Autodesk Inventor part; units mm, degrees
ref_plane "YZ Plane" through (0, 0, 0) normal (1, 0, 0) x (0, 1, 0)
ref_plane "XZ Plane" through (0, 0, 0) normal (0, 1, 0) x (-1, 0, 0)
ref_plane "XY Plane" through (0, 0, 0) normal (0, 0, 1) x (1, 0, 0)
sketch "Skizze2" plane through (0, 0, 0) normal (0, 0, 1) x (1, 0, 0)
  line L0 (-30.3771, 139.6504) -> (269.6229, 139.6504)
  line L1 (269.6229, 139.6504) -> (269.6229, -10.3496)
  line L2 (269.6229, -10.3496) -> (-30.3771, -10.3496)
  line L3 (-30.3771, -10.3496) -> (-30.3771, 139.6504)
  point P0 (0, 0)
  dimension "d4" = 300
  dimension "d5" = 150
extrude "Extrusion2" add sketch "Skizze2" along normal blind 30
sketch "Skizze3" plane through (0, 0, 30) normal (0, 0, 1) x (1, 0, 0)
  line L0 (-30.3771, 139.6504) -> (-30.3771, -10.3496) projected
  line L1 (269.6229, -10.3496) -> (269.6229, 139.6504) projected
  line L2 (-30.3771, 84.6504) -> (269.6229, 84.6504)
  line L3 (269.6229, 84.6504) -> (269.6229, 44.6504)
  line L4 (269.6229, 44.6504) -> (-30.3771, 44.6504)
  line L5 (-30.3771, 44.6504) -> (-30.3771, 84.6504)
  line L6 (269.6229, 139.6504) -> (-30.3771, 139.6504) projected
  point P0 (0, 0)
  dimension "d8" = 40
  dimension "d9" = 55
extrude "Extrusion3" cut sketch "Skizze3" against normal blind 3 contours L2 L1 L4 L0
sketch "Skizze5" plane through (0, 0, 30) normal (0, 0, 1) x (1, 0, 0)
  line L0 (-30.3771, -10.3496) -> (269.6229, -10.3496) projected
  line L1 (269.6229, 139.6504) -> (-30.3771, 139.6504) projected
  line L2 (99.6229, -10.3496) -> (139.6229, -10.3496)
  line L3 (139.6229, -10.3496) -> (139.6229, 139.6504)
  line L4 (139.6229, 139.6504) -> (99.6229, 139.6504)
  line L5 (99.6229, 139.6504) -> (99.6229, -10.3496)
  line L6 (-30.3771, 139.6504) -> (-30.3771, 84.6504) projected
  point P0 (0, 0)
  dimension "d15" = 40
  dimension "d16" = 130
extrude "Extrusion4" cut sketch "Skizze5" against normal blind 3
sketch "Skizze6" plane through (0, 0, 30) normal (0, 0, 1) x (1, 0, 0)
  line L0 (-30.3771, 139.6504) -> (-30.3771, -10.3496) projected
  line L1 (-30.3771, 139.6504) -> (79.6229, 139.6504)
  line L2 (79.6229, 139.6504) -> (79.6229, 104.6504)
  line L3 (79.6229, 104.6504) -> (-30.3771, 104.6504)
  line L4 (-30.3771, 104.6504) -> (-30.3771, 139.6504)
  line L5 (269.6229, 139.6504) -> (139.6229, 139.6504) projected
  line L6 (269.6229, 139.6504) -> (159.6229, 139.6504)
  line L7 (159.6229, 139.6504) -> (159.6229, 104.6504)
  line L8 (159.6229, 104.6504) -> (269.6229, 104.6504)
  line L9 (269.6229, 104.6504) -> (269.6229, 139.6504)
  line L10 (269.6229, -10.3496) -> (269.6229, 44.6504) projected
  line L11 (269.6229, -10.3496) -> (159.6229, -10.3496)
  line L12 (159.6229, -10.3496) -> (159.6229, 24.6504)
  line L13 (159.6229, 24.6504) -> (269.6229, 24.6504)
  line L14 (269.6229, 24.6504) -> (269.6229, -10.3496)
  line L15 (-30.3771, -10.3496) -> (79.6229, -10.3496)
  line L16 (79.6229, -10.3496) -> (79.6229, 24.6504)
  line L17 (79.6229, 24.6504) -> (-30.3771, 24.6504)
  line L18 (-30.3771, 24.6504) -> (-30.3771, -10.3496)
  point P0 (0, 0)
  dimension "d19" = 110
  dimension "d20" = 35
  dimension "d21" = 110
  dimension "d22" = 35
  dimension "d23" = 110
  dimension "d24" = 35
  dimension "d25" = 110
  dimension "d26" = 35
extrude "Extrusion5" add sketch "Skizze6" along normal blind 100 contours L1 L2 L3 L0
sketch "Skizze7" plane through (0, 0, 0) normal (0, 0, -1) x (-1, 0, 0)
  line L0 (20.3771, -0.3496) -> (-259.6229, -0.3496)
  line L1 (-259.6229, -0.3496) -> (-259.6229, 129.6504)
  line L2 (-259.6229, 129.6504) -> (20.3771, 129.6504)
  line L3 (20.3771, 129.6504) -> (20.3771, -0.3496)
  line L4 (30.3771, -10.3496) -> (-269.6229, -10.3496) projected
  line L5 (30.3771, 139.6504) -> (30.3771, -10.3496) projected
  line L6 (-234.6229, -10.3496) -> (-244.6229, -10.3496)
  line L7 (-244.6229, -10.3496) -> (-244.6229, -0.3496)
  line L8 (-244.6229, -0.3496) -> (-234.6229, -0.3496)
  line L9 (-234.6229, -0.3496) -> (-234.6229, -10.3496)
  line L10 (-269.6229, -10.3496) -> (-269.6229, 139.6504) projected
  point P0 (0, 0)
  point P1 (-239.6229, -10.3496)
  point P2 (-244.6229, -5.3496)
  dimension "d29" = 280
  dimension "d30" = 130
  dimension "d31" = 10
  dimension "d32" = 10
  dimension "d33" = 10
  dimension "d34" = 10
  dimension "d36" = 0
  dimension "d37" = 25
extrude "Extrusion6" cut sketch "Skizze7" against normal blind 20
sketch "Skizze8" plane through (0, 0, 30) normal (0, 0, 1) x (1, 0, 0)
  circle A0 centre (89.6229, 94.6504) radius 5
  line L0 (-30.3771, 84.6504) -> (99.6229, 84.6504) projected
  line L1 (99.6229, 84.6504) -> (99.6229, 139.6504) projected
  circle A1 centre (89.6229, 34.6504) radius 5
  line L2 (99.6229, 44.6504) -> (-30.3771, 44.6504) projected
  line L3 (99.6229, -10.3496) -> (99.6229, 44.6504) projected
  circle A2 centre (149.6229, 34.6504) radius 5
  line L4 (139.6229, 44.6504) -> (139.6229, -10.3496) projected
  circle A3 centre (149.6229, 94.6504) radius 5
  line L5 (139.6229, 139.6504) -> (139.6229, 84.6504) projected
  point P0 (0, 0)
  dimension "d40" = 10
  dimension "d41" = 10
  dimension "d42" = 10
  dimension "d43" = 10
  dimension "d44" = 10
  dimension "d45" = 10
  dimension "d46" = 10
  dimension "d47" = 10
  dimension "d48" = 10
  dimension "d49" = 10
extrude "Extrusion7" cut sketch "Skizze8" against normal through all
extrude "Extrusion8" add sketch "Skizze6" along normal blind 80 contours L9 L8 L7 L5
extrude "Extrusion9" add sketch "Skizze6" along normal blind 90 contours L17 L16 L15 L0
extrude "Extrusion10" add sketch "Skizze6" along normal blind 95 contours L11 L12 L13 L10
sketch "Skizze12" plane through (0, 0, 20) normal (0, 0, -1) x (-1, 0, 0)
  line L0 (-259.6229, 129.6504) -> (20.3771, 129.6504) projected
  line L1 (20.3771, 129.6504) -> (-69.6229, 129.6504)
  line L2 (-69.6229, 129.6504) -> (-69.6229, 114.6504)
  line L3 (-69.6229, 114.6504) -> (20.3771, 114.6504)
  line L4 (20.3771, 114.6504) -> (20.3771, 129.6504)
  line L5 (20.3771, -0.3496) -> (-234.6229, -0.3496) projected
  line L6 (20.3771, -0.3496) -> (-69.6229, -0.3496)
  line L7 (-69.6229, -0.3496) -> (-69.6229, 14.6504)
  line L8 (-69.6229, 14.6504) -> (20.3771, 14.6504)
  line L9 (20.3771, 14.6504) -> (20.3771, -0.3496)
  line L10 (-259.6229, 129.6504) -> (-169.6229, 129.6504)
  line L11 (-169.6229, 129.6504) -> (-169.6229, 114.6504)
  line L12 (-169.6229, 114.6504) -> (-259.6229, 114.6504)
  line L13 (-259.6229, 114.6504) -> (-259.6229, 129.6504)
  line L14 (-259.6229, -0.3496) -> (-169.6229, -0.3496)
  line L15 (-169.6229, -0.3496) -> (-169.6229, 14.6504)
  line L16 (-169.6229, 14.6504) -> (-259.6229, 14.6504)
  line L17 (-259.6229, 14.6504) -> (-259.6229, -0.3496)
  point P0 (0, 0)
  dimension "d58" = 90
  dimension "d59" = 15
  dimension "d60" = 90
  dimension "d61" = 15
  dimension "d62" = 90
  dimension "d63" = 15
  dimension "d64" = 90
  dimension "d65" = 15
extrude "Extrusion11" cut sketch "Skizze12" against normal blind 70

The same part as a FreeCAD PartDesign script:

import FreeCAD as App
import Part
import Sketcher
from FreeCAD import Vector

doc = App.newDocument("Part")
body = doc.addObject("PartDesign::Body", "Body")

sketch1 = body.newObject("Sketcher::SketchObject", "Sketch")
sketch1.AttachmentSupport = (doc.getObject("XY_Plane"), [""])
sketch1.MapMode = "FlatFace"
sketch1.addGeometry(Part.LineSegment(Vector(270, 140, 0), Vector(-30, 140, 0)), False)
sketch1.addGeometry(Part.LineSegment(Vector(-30, 140, 0), Vector(-30, -10, 0)), False)
sketch1.addGeometry(Part.LineSegment(Vector(-30, -10, 0), Vector(270, -10, 0)), False)
sketch1.addGeometry(Part.LineSegment(Vector(270, -10, 0), Vector(270, 140, 0)), False)
sketch1.addConstraint(Sketcher.Constraint("Coincident", 0, 2, 1, 1))
sketch1.addConstraint(Sketcher.Constraint("Coincident", 1, 2, 2, 1))
sketch1.addConstraint(Sketcher.Constraint("Coincident", 2, 2, 3, 1))
sketch1.addConstraint(Sketcher.Constraint("Coincident", 3, 2, 0, 1))
sketch1.addConstraint(Sketcher.Constraint("Horizontal", 0))
sketch1.addConstraint(Sketcher.Constraint("Vertical", 1))
sketch1.addConstraint(Sketcher.Constraint("Horizontal", 2))
sketch1.addConstraint(Sketcher.Constraint("Vertical", 3))
sketch1.addConstraint(Sketcher.Constraint("DistanceX", 0, 2, 0, 1, 300.0))
sketch1.addConstraint(Sketcher.Constraint("DistanceY", 1, 2, 1, 1, 150.0))
sketch1.addConstraint(Sketcher.Constraint("DistanceX", 0, 2, -1, 1, 30.377))
sketch1.addConstraint(Sketcher.Constraint("DistanceY", -1, 1, 0, 2, 139.6504))
pad1 = body.newObject("PartDesign::Pad", "Pad")
pad1.Profile = sketch1
pad1.Length = 30

sketch2 = body.newObject("Sketcher::SketchObject", "Sketch001")
sketch2.AttachmentSupport = (doc.getObject("XY_Plane"), [""])
sketch2.MapMode = "FlatFace"
sketch2.AttachmentOffset = App.Placement(Vector(0, 0, 30), App.Rotation())
sketch2.addGeometry(Part.LineSegment(Vector(270, 85, 0), Vector(-30, 85, 0)), False)
sketch2.addGeometry(Part.LineSegment(Vector(-30, 85, 0), Vector(-30, 45, 0)), False)
sketch2.addGeometry(Part.LineSegment(Vector(-30, 45, 0), Vector(270, 45, 0)), False)
sketch2.addGeometry(Part.LineSegment(Vector(270, 45, 0), Vector(270, 85, 0)), False)
sketch2.addConstraint(Sketcher.Constraint("Coincident", 0, 2, 1, 1))
sketch2.addConstraint(Sketcher.Constraint("Coincident", 1, 2, 2, 1))
sketch2.addConstraint(Sketcher.Constraint("Coincident", 2, 2, 3, 1))
sketch2.addConstraint(Sketcher.Constraint("Coincident", 3, 2, 0, 1))
sketch2.addConstraint(Sketcher.Constraint("Horizontal", 0))
sketch2.addConstraint(Sketcher.Constraint("Vertical", 1))
sketch2.addConstraint(Sketcher.Constraint("Horizontal", 2))
sketch2.addConstraint(Sketcher.Constraint("Vertical", 3))
sketch2.addConstraint(Sketcher.Constraint("DistanceY", 1, 2, 1, 1, 40.0))
sketch2.addConstraint(Sketcher.Constraint("DistanceX", 0, 2, 0, 1, 300.0))
sketch2.addConstraint(Sketcher.Constraint("DistanceX", 0, 2, -1, 1, 30.377))
sketch2.addConstraint(Sketcher.Constraint("DistanceY", -1, 1, 0, 2, 84.6504))
pocket1 = body.newObject("PartDesign::Pocket", "Pocket")
pocket1.Profile = sketch2
pocket1.Length = 3

sketch3 = body.newObject("Sketcher::SketchObject", "Sketch002")
sketch3.AttachmentSupport = (doc.getObject("XY_Plane"), [""])
sketch3.MapMode = "FlatFace"
sketch3.AttachmentOffset = App.Placement(Vector(0, 0, 30), App.Rotation())
sketch3.addGeometry(Part.LineSegment(Vector(100, 140, 0), Vector(100, -10, 0)), False)
sketch3.addGeometry(Part.LineSegment(Vector(100, -10, 0), Vector(140, -10, 0)), False)
sketch3.addGeometry(Part.LineSegment(Vector(140, -10, 0), Vector(140, 140, 0)), False)
sketch3.addGeometry(Part.LineSegment(Vector(140, 140, 0), Vector(100, 140, 0)), False)
sketch3.addConstraint(Sketcher.Constraint("Coincident", 0, 2, 1, 1))
sketch3.addConstraint(Sketcher.Constraint("Coincident", 1, 2, 2, 1))
sketch3.addConstraint(Sketcher.Constraint("Coincident", 2, 2, 3, 1))
sketch3.addConstraint(Sketcher.Constraint("Coincident", 3, 2, 0, 1))
sketch3.addConstraint(Sketcher.Constraint("Vertical", 0))
sketch3.addConstraint(Sketcher.Constraint("Horizontal", 1))
sketch3.addConstraint(Sketcher.Constraint("Vertical", 2))
sketch3.addConstraint(Sketcher.Constraint("Horizontal", 3))
sketch3.addConstraint(Sketcher.Constraint("DistanceX", 1, 1, 1, 2, 40.0))
sketch3.addConstraint(Sketcher.Constraint("DistanceY", 0, 2, 0, 1, 150.0))
sketch3.addConstraint(Sketcher.Constraint("DistanceX", -1, 1, 0, 2, 99.623))
sketch3.addConstraint(Sketcher.Constraint("DistanceY", 0, 2, -1, 1, 10.3496))
pocket2 = body.newObject("PartDesign::Pocket", "Pocket001")
pocket2.Profile = sketch3
pocket2.Length = 3

sketch4 = body.newObject("Sketcher::SketchObject", "Sketch003")
sketch4.AttachmentSupport = (doc.getObject("XY_Plane"), [""])
sketch4.MapMode = "FlatFace"
sketch4.AttachmentOffset = App.Placement(Vector(0, 0, 30), App.Rotation())
sketch4.addGeometry(Part.LineSegment(Vector(80, 140, 0), Vector(-30, 140, 0)), False)
sketch4.addGeometry(Part.LineSegment(Vector(-30, 140, 0), Vector(-30, 105, 0)), False)
sketch4.addGeometry(Part.LineSegment(Vector(-30, 105, 0), Vector(80, 105, 0)), False)
sketch4.addGeometry(Part.LineSegment(Vector(80, 105, 0), Vector(80, 140, 0)), False)
sketch4.addConstraint(Sketcher.Constraint("Coincident", 0, 2, 1, 1))
sketch4.addConstraint(Sketcher.Constraint("Coincident", 1, 2, 2, 1))
sketch4.addConstraint(Sketcher.Constraint("Coincident", 2, 2, 3, 1))
sketch4.addConstraint(Sketcher.Constraint("Coincident", 3, 2, 0, 1))
sketch4.addConstraint(Sketcher.Constraint("Horizontal", 0))
sketch4.addConstraint(Sketcher.Constraint("Vertical", 1))
sketch4.addConstraint(Sketcher.Constraint("Horizontal", 2))
sketch4.addConstraint(Sketcher.Constraint("Vertical", 3))
sketch4.addConstraint(Sketcher.Constraint("DistanceX", 0, 2, 0, 1, 110.0))
sketch4.addConstraint(Sketcher.Constraint("DistanceY", 1, 2, 1, 1, 35.0))
sketch4.addConstraint(Sketcher.Constraint("DistanceX", 0, 2, -1, 1, 30.377))
sketch4.addConstraint(Sketcher.Constraint("DistanceY", -1, 1, 0, 2, 139.6504))
pad2 = body.newObject("PartDesign::Pad", "Pad001")
pad2.Profile = sketch4
pad2.Length = 100

sketch5 = body.newObject("Sketcher::SketchObject", "Sketch004")
sketch5.AttachmentSupport = (doc.getObject("XY_Plane"), [""])
sketch5.MapMode = "FlatFace"
sketch5.addGeometry(Part.LineSegment(Vector(235, 0, 0), Vector(-20, 0, 0)), False)
sketch5.addGeometry(Part.LineSegment(Vector(-20, 0, 0), Vector(-20, 130, 0)), False)
sketch5.addGeometry(Part.LineSegment(Vector(-20, 130, 0), Vector(260, 130, 0)), False)
sketch5.addGeometry(Part.LineSegment(Vector(260, 130, 0), Vector(260, 0, 0)), False)
sketch5.addGeometry(Part.LineSegment(Vector(260, 0, 0), Vector(245, 0, 0)), False)
sketch5.addGeometry(Part.LineSegment(Vector(245, 0, 0), Vector(245, -10, 0)), False)
sketch5.addGeometry(Part.LineSegment(Vector(245, -10, 0), Vector(235, -10, 0)), False)
sketch5.addGeometry(Part.LineSegment(Vector(235, -10, 0), Vector(235, 0, 0)), False)
sketch5.addConstraint(Sketcher.Constraint("Coincident", 0, 2, 1, 1))
sketch5.addConstraint(Sketcher.Constraint("Coincident", 1, 2, 2, 1))
sketch5.addConstraint(Sketcher.Constraint("Coincident", 2, 2, 3, 1))
sketch5.addConstraint(Sketcher.Constraint("Coincident", 3, 2, 4, 1))
sketch5.addConstraint(Sketcher.Constraint("Coincident", 4, 2, 5, 1))
sketch5.addConstraint(Sketcher.Constraint("Coincident", 5, 2, 6, 1))
sketch5.addConstraint(Sketcher.Constraint("Coincident", 6, 2, 7, 1))
sketch5.addConstraint(Sketcher.Constraint("Coincident", 7, 2, 0, 1))
sketch5.addConstraint(Sketcher.Constraint("Horizontal", 0))
sketch5.addConstraint(Sketcher.Constraint("Vertical", 1))
sketch5.addConstraint(Sketcher.Constraint("Horizontal", 2))
sketch5.addConstraint(Sketcher.Constraint("Vertical", 3))
sketch5.addConstraint(Sketcher.Constraint("Horizontal", 4))
sketch5.addConstraint(Sketcher.Constraint("Vertical", 5))
sketch5.addConstraint(Sketcher.Constraint("Horizontal", 6))
sketch5.addConstraint(Sketcher.Constraint("Vertical", 7))
sketch5.addConstraint(Sketcher.Constraint("Horizontal", 0, 2, 3, 2))
sketch5.addConstraint(Sketcher.Constraint("Equal", 6, 5))
sketch5.addConstraint(Sketcher.Constraint("DistanceX", 2, 1, 2, 2, 280.0))
sketch5.addConstraint(Sketcher.Constraint("DistanceX", 6, 2, 6, 1, 10.0))
sketch5.addConstraint(Sketcher.Constraint("DistanceY", 1, 1, 1, 2, 130.0))
sketch5.addConstraint(Sketcher.Constraint("DistanceX", 6, 2, 3, 2, 25.0))
sketch5.addConstraint(Sketcher.Constraint("DistanceX", 0, 2, -1, 1, 20.377))
sketch5.addConstraint(Sketcher.Constraint("DistanceY", 0, 2, -1, 1, 0.3496))
pocket3 = body.newObject("PartDesign::Pocket", "Pocket002")
pocket3.Profile = sketch5
pocket3.Length = 20
pocket3.Reversed = True

sketch6 = body.newObject("Sketcher::SketchObject", "Sketch005")
sketch6.AttachmentSupport = (doc.getObject("XY_Plane"), [""])
sketch6.MapMode = "FlatFace"
sketch6.AttachmentOffset = App.Placement(Vector(0, 0, 30), App.Rotation())
sketch6.addGeometry(Part.Circle(Vector(90, 95, 0), Vector(0, 0, 1), 5), False)
sketch6.addGeometry(Part.Circle(Vector(90, 35, 0), Vector(0, 0, 1), 5), False)
sketch6.addGeometry(Part.Circle(Vector(150, 35, 0), Vector(0, 0, 1), 5), False)
sketch6.addGeometry(Part.Circle(Vector(150, 95, 0), Vector(0, 0, 1), 5), False)
sketch6.addConstraint(Sketcher.Constraint("Equal", 0, 1))
sketch6.addConstraint(Sketcher.Constraint("Equal", 1, 2))
sketch6.addConstraint(Sketcher.Constraint("Equal", 2, 3))
sketch6.addConstraint(Sketcher.Constraint("Horizontal", 1, 3, 2, 3))
sketch6.addConstraint(Sketcher.Constraint("Horizontal", 0, 3, 3, 3))
sketch6.addConstraint(Sketcher.Constraint("Vertical", 0, 3, 1, 3))
sketch6.addConstraint(Sketcher.Constraint("Vertical", 2, 3, 3, 3))
sketch6.addConstraint(Sketcher.Constraint("Diameter", 0, 10.0))
sketch6.addConstraint(Sketcher.Constraint("DistanceY", 1, 3, 0, 3, 60.0))
sketch6.addConstraint(Sketcher.Constraint("DistanceX", 1, 3, 2, 3, 60.0))
sketch6.addConstraint(Sketcher.Constraint("DistanceX", -1, 1, 0, 3, 89.623))
sketch6.addConstraint(Sketcher.Constraint("DistanceY", -1, 1, 0, 3, 94.6504))
pocket4 = body.newObject("PartDesign::Pocket", "Pocket003")
pocket4.Profile = sketch6
pocket4.Type = "ThroughAll"

sketch7 = body.newObject("Sketcher::SketchObject", "Sketch006")
sketch7.AttachmentSupport = (doc.getObject("XY_Plane"), [""])
sketch7.MapMode = "FlatFace"
sketch7.AttachmentOffset = App.Placement(Vector(0, 0, 30), App.Rotation())
sketch7.addGeometry(Part.LineSegment(Vector(270, 105, 0), Vector(270, 140, 0)), False)
sketch7.addGeometry(Part.LineSegment(Vector(270, 140, 0), Vector(160, 140, 0)), False)
sketch7.addGeometry(Part.LineSegment(Vector(160, 140, 0), Vector(160, 105, 0)), False)
sketch7.addGeometry(Part.LineSegment(Vector(160, 105, 0), Vector(270, 105, 0)), False)
sketch7.addConstraint(Sketcher.Constraint("Coincident", 0, 2, 1, 1))
sketch7.addConstraint(Sketcher.Constraint("Coincident", 1, 2, 2, 1))
sketch7.addConstraint(Sketcher.Constraint("Coincident", 2, 2, 3, 1))
sketch7.addConstraint(Sketcher.Constraint("Coincident", 3, 2, 0, 1))
sketch7.addConstraint(Sketcher.Constraint("Vertical", 0))
sketch7.addConstraint(Sketcher.Constraint("Horizontal", 1))
sketch7.addConstraint(Sketcher.Constraint("Vertical", 2))
sketch7.addConstraint(Sketcher.Constraint("Horizontal", 3))
sketch7.addConstraint(Sketcher.Constraint("DistanceX", 1, 2, 1, 1, 110.0))
sketch7.addConstraint(Sketcher.Constraint("DistanceY", 0, 1, 0, 2, 35.0))
sketch7.addConstraint(Sketcher.Constraint("DistanceX", -1, 1, 0, 2, 269.623))
sketch7.addConstraint(Sketcher.Constraint("DistanceY", -1, 1, 0, 2, 139.6504))
pad3 = body.newObject("PartDesign::Pad", "Pad002")
pad3.Profile = sketch7
pad3.Length = 80

sketch8 = body.newObject("Sketcher::SketchObject", "Sketch007")
sketch8.AttachmentSupport = (doc.getObject("XY_Plane"), [""])
sketch8.MapMode = "FlatFace"
sketch8.AttachmentOffset = App.Placement(Vector(0, 0, 30), App.Rotation())
sketch8.addGeometry(Part.LineSegment(Vector(80, 25, 0), Vector(-30, 25, 0)), False)
sketch8.addGeometry(Part.LineSegment(Vector(-30, 25, 0), Vector(-30, -10, 0)), False)
sketch8.addGeometry(Part.LineSegment(Vector(-30, -10, 0), Vector(80, -10, 0)), False)
sketch8.addGeometry(Part.LineSegment(Vector(80, -10, 0), Vector(80, 25, 0)), False)
sketch8.addConstraint(Sketcher.Constraint("Coincident", 0, 2, 1, 1))
sketch8.addConstraint(Sketcher.Constraint("Coincident", 1, 2, 2, 1))
sketch8.addConstraint(Sketcher.Constraint("Coincident", 2, 2, 3, 1))
sketch8.addConstraint(Sketcher.Constraint("Coincident", 3, 2, 0, 1))
sketch8.addConstraint(Sketcher.Constraint("Horizontal", 0))
sketch8.addConstraint(Sketcher.Constraint("Vertical", 1))
sketch8.addConstraint(Sketcher.Constraint("Horizontal", 2))
sketch8.addConstraint(Sketcher.Constraint("Vertical", 3))
sketch8.addConstraint(Sketcher.Constraint("DistanceX", 0, 2, 0, 1, 110.0))
sketch8.addConstraint(Sketcher.Constraint("DistanceY", 1, 2, 1, 1, 35.0))
sketch8.addConstraint(Sketcher.Constraint("DistanceX", 0, 2, -1, 1, 30.377))
sketch8.addConstraint(Sketcher.Constraint("DistanceY", -1, 1, 0, 2, 24.6504))
pad4 = body.newObject("PartDesign::Pad", "Pad003")
pad4.Profile = sketch8
pad4.Length = 90

sketch9 = body.newObject("Sketcher::SketchObject", "Sketch008")
sketch9.AttachmentSupport = (doc.getObject("XY_Plane"), [""])
sketch9.MapMode = "FlatFace"
sketch9.AttachmentOffset = App.Placement(Vector(0, 0, 30), App.Rotation())
sketch9.addGeometry(Part.LineSegment(Vector(160, -10, 0), Vector(270, -10, 0)), False)
sketch9.addGeometry(Part.LineSegment(Vector(270, -10, 0), Vector(270, 25, 0)), False)
sketch9.addGeometry(Part.LineSegment(Vector(270, 25, 0), Vector(160, 25, 0)), False)
sketch9.addGeometry(Part.LineSegment(Vector(160, 25, 0), Vector(160, -10, 0)), False)
sketch9.addConstraint(Sketcher.Constraint("Coincident", 0, 2, 1, 1))
sketch9.addConstraint(Sketcher.Constraint("Coincident", 1, 2, 2, 1))
sketch9.addConstraint(Sketcher.Constraint("Coincident", 2, 2, 3, 1))
sketch9.addConstraint(Sketcher.Constraint("Coincident", 3, 2, 0, 1))
sketch9.addConstraint(Sketcher.Constraint("Horizontal", 0))
sketch9.addConstraint(Sketcher.Constraint("Vertical", 1))
sketch9.addConstraint(Sketcher.Constraint("Horizontal", 2))
sketch9.addConstraint(Sketcher.Constraint("Vertical", 3))
sketch9.addConstraint(Sketcher.Constraint("DistanceX", 0, 1, 0, 2, 110.0))
sketch9.addConstraint(Sketcher.Constraint("DistanceY", 1, 1, 1, 2, 35.0))
sketch9.addConstraint(Sketcher.Constraint("DistanceX", -1, 1, 0, 2, 269.623))
sketch9.addConstraint(Sketcher.Constraint("DistanceY", 0, 2, -1, 1, 10.3496))
pad5 = body.newObject("PartDesign::Pad", "Pad004")
pad5.Profile = sketch9
pad5.Length = 95

sketch10 = body.newObject("Sketcher::SketchObject", "Sketch009")
sketch10.AttachmentSupport = (doc.getObject("XY_Plane"), [""])
sketch10.MapMode = "FlatFace"
sketch10.AttachmentOffset = App.Placement(Vector(0, 0, 20), App.Rotation())
sketch10.addGeometry(Part.LineSegment(Vector(-20, 130, 0), Vector(70, 130, 0)), False)
sketch10.addGeometry(Part.LineSegment(Vector(70, 130, 0), Vector(70, 115, 0)), False)
sketch10.addGeometry(Part.LineSegment(Vector(70, 115, 0), Vector(-20, 115, 0)), False)
sketch10.addGeometry(Part.LineSegment(Vector(-20, 115, 0), Vector(-20, 130, 0)), False)
sketch10.addGeometry(Part.LineSegment(Vector(170, 130, 0), Vector(260, 130, 0)), False)
sketch10.addGeometry(Part.LineSegment(Vector(260, 130, 0), Vector(260, 115, 0)), False)
sketch10.addGeometry(Part.LineSegment(Vector(260, 115, 0), Vector(170, 115, 0)), False)
sketch10.addGeometry(Part.LineSegment(Vector(170, 115, 0), Vector(170, 130, 0)), False)
sketch10.addGeometry(Part.LineSegment(Vector(260, 0, 0), Vector(170, 0, 0)), False)
sketch10.addGeometry(Part.LineSegment(Vector(170, 0, 0), Vector(170, 15, 0)), False)
sketch10.addGeometry(Part.LineSegment(Vector(170, 15, 0), Vector(260, 15, 0)), False)
sketch10.addGeometry(Part.LineSegment(Vector(260, 15, 0), Vector(260, 0, 0)), False)
sketch10.addGeometry(Part.LineSegment(Vector(70, 0, 0), Vector(-20, 0, 0)), False)
sketch10.addGeometry(Part.LineSegment(Vector(-20, 0, 0), Vector(-20, 15, 0)), False)
sketch10.addGeometry(Part.LineSegment(Vector(-20, 15, 0), Vector(70, 15, 0)), False)
sketch10.addGeometry(Part.LineSegment(Vector(70, 15, 0), Vector(70, 0, 0)), False)
sketch10.addConstraint(Sketcher.Constraint("Coincident", 0, 2, 1, 1))
sketch10.addConstraint(Sketcher.Constraint("Coincident", 1, 2, 2, 1))
sketch10.addConstraint(Sketcher.Constraint("Coincident", 2, 2, 3, 1))
sketch10.addConstraint(Sketcher.Constraint("Coincident", 3, 2, 0, 1))
sketch10.addConstraint(Sketcher.Constraint("Coincident", 4, 2, 5, 1))
sketch10.addConstraint(Sketcher.Constraint("Coincident", 5, 2, 6, 1))
sketch10.addConstraint(Sketcher.Constraint("Coincident", 6, 2, 7, 1))
sketch10.addConstraint(Sketcher.Constraint("Coincident", 7, 2, 4, 1))
sketch10.addConstraint(Sketcher.Constraint("Coincident", 8, 2, 9, 1))
sketch10.addConstraint(Sketcher.Constraint("Coincident", 9, 2, 10, 1))
sketch10.addConstraint(Sketcher.Constraint("Coincident", 10, 2, 11, 1))
sketch10.addConstraint(Sketcher.Constraint("Coincident", 11, 2, 8, 1))
sketch10.addConstraint(Sketcher.Constraint("Coincident", 12, 2, 13, 1))
sketch10.addConstraint(Sketcher.Constraint("Coincident", 13, 2, 14, 1))
sketch10.addConstraint(Sketcher.Constraint("Coincident", 14, 2, 15, 1))
sketch10.addConstraint(Sketcher.Constraint("Coincident", 15, 2, 12, 1))
sketch10.addConstraint(Sketcher.Constraint("Horizontal", 0))
sketch10.addConstraint(Sketcher.Constraint("Vertical", 1))
sketch10.addConstraint(Sketcher.Constraint("Horizontal", 2))
sketch10.addConstraint(Sketcher.Constraint("Vertical", 3))
sketch10.addConstraint(Sketcher.Constraint("Horizontal", 4))
sketch10.addConstraint(Sketcher.Constraint("Vertical", 5))
sketch10.addConstraint(Sketcher.Constraint("Horizontal", 6))
sketch10.addConstraint(Sketcher.Constraint("Vertical", 7))
sketch10.addConstraint(Sketcher.Constraint("Horizontal", 8))
sketch10.addConstraint(Sketcher.Constraint("Vertical", 9))
sketch10.addConstraint(Sketcher.Constraint("Horizontal", 10))
sketch10.addConstraint(Sketcher.Constraint("Vertical", 11))
sketch10.addConstraint(Sketcher.Constraint("Horizontal", 12))
sketch10.addConstraint(Sketcher.Constraint("Vertical", 13))
sketch10.addConstraint(Sketcher.Constraint("Horizontal", 14))
sketch10.addConstraint(Sketcher.Constraint("Vertical", 15))
sketch10.addConstraint(Sketcher.Constraint("Horizontal", 3, 2, 4, 2))
sketch10.addConstraint(Sketcher.Constraint("Horizontal", 2, 2, 5, 2))
sketch10.addConstraint(Sketcher.Constraint("Horizontal", 11, 2, 12, 2))
sketch10.addConstraint(Sketcher.Constraint("Horizontal", 10, 2, 13, 2))
sketch10.addConstraint(Sketcher.Constraint("Vertical", 7, 2, 8, 2))
sketch10.addConstraint(Sketcher.Constraint("Vertical", 5, 2, 10, 2))
sketch10.addConstraint(Sketcher.Constraint("Vertical", 3, 2, 12, 2))
sketch10.addConstraint(Sketcher.Constraint("Vertical", 1, 2, 14, 2))
sketch10.addConstraint(Sketcher.Constraint("Equal", 2, 4))
sketch10.addConstraint(Sketcher.Constraint("Equal", 7, 9))
sketch10.addConstraint(Sketcher.Constraint("DistanceX", 0, 1, 0, 2, 90.0))
sketch10.addConstraint(Sketcher.Constraint("DistanceY", 1, 2, 1, 1, 15.0))
sketch10.addConstraint(Sketcher.Constraint("DistanceX", 0, 2, 4, 2, 190.0))
sketch10.addConstraint(Sketcher.Constraint("DistanceY", 8, 2, 6, 2, 115.0))
sketch10.addConstraint(Sketcher.Constraint("DistanceX", -1, 1, 0, 2, 69.623))
sketch10.addConstraint(Sketcher.Constraint("DistanceY", -1, 1, 0, 2, 129.6504))
pocket5 = body.newObject("PartDesign::Pocket", "Pocket004")
pocket5.Profile = sketch10
pocket5.Length = 70
pocket5.Reversed = True

doc.recompute()
